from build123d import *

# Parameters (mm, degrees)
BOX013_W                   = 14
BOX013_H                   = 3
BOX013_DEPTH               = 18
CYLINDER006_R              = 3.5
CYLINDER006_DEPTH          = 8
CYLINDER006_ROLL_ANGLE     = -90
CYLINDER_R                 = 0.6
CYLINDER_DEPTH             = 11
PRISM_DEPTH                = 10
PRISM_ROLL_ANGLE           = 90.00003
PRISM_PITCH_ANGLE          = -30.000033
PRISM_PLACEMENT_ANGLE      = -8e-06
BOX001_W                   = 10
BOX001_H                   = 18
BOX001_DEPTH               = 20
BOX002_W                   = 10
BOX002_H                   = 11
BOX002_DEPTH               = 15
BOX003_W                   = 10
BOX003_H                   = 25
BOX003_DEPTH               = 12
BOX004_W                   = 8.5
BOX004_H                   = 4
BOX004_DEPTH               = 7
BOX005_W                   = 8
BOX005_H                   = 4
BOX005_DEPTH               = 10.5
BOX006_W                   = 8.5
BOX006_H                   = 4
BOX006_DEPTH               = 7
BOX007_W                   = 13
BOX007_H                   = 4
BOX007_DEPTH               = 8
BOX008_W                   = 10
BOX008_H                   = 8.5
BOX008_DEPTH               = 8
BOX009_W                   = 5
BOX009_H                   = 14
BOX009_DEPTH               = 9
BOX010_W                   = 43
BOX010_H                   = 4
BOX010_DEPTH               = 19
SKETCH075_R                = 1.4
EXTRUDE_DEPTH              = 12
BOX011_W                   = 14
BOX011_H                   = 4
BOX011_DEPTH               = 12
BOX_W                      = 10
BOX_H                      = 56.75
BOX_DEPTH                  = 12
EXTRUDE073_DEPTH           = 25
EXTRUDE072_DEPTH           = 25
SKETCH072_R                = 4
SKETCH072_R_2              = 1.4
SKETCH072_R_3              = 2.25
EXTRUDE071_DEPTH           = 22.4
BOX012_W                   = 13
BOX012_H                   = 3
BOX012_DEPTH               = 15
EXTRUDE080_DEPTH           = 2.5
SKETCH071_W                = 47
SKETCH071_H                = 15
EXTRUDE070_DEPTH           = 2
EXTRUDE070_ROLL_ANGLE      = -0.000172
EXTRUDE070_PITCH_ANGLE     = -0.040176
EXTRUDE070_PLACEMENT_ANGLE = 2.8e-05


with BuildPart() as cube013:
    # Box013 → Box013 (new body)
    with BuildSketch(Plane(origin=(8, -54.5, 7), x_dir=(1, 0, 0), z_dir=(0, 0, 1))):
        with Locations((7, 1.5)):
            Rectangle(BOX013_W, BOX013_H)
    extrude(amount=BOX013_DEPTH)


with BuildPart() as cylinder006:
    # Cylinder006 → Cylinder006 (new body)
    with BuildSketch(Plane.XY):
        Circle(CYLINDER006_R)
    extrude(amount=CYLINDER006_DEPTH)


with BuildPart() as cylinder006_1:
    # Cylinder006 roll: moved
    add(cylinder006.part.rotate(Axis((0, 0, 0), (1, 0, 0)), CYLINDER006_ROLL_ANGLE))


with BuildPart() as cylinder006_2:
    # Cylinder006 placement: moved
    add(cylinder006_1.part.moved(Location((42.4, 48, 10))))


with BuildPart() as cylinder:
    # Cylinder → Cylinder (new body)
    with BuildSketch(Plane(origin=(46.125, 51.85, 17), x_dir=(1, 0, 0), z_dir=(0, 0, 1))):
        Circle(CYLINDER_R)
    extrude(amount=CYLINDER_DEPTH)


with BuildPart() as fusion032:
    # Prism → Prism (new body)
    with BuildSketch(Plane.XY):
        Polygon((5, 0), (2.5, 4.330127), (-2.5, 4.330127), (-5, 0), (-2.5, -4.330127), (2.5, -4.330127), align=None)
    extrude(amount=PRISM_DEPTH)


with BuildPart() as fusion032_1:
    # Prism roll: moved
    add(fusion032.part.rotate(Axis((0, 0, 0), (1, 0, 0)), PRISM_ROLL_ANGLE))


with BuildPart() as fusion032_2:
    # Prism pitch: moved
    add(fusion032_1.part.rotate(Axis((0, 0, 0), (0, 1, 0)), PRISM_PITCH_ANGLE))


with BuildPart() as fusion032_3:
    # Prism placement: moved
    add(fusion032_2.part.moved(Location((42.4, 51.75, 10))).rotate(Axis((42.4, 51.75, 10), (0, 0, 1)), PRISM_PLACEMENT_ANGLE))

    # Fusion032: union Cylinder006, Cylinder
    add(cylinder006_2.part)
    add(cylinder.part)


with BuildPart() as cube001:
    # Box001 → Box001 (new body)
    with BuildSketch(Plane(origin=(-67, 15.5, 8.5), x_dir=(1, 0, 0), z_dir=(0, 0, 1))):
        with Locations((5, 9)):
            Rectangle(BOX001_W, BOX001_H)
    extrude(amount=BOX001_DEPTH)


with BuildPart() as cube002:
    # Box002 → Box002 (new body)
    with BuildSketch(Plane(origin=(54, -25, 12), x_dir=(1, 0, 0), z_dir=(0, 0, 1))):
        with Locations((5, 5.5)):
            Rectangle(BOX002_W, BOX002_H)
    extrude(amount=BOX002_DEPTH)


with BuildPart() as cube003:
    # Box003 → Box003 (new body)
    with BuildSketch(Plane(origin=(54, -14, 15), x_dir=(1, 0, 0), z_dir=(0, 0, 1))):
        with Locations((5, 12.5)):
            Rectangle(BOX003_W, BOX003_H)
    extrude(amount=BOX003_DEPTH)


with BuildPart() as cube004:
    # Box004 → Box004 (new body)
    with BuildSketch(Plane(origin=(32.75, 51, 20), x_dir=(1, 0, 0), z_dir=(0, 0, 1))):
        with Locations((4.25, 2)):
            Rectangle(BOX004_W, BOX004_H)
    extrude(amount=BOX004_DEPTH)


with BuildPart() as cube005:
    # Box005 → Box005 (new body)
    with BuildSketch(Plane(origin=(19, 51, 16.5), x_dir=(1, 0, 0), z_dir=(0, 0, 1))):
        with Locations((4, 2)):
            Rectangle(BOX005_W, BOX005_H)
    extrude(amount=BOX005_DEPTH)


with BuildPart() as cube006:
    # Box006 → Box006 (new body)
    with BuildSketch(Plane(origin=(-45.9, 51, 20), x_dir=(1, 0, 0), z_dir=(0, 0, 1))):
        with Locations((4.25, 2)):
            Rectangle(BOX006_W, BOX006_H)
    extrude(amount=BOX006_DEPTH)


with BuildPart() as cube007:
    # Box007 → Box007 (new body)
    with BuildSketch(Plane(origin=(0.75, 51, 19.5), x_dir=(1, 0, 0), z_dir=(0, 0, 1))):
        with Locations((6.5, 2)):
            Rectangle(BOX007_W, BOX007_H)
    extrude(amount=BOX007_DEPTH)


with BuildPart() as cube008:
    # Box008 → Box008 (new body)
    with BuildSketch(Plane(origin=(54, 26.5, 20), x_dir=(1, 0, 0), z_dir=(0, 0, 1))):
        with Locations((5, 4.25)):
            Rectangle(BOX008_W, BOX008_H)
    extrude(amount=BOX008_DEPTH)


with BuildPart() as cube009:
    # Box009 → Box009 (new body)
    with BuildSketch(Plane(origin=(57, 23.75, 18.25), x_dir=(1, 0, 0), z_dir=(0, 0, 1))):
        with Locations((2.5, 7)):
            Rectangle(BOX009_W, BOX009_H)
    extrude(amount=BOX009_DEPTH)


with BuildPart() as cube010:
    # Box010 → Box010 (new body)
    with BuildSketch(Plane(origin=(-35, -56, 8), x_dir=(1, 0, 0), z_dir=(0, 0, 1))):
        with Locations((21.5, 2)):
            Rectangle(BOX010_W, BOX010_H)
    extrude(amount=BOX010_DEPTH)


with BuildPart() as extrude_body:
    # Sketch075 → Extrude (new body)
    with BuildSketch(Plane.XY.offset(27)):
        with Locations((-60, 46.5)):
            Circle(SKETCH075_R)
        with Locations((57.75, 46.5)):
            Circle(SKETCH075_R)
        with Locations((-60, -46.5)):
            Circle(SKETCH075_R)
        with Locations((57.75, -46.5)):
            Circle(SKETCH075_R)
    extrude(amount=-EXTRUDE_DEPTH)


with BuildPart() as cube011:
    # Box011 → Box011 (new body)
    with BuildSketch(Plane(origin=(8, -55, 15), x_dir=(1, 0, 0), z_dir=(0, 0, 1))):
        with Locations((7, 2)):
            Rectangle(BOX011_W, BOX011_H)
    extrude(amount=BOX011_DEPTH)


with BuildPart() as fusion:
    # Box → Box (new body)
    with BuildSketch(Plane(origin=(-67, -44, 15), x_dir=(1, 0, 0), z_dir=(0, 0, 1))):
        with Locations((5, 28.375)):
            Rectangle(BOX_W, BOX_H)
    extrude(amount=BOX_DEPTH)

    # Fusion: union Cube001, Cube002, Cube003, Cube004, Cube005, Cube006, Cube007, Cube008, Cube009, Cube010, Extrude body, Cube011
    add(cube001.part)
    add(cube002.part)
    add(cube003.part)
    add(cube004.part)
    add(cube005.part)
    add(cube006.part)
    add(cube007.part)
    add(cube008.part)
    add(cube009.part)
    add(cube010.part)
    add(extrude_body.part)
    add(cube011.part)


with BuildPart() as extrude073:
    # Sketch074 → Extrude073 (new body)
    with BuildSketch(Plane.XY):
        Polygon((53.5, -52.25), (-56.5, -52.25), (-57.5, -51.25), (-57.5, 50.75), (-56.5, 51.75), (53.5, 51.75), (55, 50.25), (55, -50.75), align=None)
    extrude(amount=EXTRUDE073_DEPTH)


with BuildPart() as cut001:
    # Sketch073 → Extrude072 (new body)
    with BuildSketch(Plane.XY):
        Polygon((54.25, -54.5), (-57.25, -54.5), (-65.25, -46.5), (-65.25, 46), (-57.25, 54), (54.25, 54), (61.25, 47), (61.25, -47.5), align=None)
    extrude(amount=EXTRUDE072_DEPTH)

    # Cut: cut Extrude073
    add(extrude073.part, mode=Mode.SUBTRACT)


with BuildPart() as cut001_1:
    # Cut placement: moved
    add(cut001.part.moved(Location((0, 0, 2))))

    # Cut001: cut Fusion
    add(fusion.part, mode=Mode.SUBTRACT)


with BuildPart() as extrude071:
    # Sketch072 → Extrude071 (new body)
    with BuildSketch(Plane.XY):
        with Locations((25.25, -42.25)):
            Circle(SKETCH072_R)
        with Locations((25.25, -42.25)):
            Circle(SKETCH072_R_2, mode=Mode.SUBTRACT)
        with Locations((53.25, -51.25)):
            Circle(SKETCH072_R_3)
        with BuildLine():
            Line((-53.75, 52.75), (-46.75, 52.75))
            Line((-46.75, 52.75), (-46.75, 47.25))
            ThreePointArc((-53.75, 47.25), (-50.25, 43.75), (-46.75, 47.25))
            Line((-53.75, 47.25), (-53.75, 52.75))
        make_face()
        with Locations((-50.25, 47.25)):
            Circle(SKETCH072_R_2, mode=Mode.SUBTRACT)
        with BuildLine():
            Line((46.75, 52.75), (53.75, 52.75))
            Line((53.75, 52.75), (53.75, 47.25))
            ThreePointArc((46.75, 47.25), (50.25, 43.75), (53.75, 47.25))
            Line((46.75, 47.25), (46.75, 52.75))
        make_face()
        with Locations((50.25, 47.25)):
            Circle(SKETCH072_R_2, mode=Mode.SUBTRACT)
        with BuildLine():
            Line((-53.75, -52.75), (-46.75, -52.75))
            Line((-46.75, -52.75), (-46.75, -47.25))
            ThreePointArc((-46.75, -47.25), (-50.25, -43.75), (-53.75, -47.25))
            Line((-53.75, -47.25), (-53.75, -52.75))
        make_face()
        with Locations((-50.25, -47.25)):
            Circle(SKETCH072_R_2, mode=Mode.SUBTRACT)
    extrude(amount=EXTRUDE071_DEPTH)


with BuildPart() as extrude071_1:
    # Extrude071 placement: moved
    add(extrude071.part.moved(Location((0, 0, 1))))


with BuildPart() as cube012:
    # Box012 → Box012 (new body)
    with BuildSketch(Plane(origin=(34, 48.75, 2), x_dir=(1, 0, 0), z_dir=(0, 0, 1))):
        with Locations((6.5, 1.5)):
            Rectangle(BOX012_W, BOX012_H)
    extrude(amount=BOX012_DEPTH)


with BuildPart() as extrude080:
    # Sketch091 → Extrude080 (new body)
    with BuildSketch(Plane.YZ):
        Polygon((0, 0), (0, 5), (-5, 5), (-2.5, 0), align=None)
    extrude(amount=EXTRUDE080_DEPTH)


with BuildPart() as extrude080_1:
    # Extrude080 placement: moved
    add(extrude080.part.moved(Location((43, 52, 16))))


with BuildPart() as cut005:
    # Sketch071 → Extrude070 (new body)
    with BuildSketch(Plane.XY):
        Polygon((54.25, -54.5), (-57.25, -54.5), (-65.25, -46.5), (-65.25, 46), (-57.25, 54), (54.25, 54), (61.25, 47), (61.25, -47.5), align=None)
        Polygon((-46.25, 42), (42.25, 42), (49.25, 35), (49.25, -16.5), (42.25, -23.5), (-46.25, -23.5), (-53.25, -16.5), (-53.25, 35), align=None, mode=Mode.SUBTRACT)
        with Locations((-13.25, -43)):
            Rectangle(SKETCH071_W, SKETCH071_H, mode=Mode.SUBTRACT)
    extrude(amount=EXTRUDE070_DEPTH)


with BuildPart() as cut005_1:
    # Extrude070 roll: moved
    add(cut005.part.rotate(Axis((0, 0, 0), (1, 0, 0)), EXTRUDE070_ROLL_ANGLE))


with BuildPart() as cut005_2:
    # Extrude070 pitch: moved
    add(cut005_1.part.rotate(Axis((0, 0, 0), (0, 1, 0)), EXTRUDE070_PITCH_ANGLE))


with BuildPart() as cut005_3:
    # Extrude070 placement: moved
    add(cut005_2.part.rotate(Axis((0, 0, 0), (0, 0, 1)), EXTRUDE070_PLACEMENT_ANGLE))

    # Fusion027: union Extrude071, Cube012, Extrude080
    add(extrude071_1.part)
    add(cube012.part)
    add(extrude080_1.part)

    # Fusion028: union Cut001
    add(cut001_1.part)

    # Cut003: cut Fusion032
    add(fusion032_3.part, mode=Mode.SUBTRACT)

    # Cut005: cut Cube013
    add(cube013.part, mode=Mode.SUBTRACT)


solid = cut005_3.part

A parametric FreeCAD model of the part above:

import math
import FreeCAD as App
import Part
import Sketcher
from FreeCAD import Vector
Q = App.Units.Quantity

doc = App.newDocument("Part")
body = doc.addObject("PartDesign::Body", "Body")

sketch1 = body.newObject("Sketcher::SketchObject", "Sketch")
sketch1.AttachmentSupport = (doc.getObject("XY_Plane"), [""])
sketch1.MapMode = "FlatFace"
sketch1.AttachmentOffset = App.Placement(Vector(0, 0, 7), App.Rotation())
sketch1.addGeometry([
    Part.LineSegment(Vector(8, -51.5, 0), Vector(8, -54.5, 0)),
    Part.LineSegment(Vector(8, -54.5, 0), Vector(22, -54.5, 0)),
    Part.LineSegment(Vector(22, -54.5, 0), Vector(22, -51.5, 0)),
    Part.LineSegment(Vector(22, -51.5, 0), Vector(8, -51.5, 0)),
], False)
sketch1.addConstraint([
    Sketcher.Constraint("Coincident", 0, 2, 1, 1),
    Sketcher.Constraint("Coincident", 1, 2, 2, 1),
    Sketcher.Constraint("Coincident", 2, 2, 3, 1),
    Sketcher.Constraint("Coincident", 3, 2, 0, 1),
    Sketcher.Constraint("Vertical", 0),
    Sketcher.Constraint("Horizontal", 1),
    Sketcher.Constraint("Vertical", 2),
    Sketcher.Constraint("Horizontal", 3),
    Sketcher.Constraint("DistanceX", 1, 1, 1, 2, 14.0),
    Sketcher.Constraint("DistanceY", 0, 2, 0, 1, 3.0),
    Sketcher.Constraint("DistanceX", -1, 1, 0, 2, 8.0),
    Sketcher.Constraint("DistanceY", 0, 2, -1, 1, 54.5),
])
pad1 = body.newObject("PartDesign::Pad", "Pad")
pad1.Profile = sketch1
pad1.Length = 18
body2 = doc.addObject("PartDesign::Body", "Body001")

sketch2 = body2.newObject("Sketcher::SketchObject", "Sketch001")
sketch2.AttachmentSupport = (doc.getObject("XY_Plane001"), [""])
sketch2.MapMode = "FlatFace"
sketch2.addGeometry(Part.Circle(Vector(0, 0, 0), Vector(0, 0, 1), 3.5), False)
sketch2.addConstraint([
    Sketcher.Constraint("Coincident", 0, 3, -1, 1),
    Sketcher.Constraint("Diameter", 0, 7.0),
])
pad2 = body2.newObject("PartDesign::Pad", "Pad001")
pad2.Profile = sketch2
pad2.Length = 8
body3 = doc.addObject("PartDesign::Body", "Body002")
doc.recompute()

body2.Placement = App.Placement(Vector(0, 0, 0), App.Rotation(Vector(1, 0, 0), 270))
boolean = body3.newObject("PartDesign::Boolean", "Boolean")
boolean.Type = "Fuse"
boolean.addObjects([body2])
body4 = doc.addObject("PartDesign::Body", "Body003")
doc.recompute()

body3.Placement = App.Placement(Vector(42.4, 48, 10), App.Rotation(Vector(0, 0, 1), 0))
boolean2 = body4.newObject("PartDesign::Boolean", "Boolean001")
boolean2.Type = "Fuse"
boolean2.addObjects([body3])
body5 = doc.addObject("PartDesign::Body", "Body004")

sketch3 = body5.newObject("Sketcher::SketchObject", "Sketch002")
sketch3.AttachmentSupport = (doc.getObject("XY_Plane004"), [""])
sketch3.MapMode = "FlatFace"
sketch3.AttachmentOffset = App.Placement(Vector(0, 0, 17), App.Rotation())
sketch3.addGeometry(Part.Circle(Vector(46.125, 51.85, 0), Vector(0, 0, 1), 0.6), False)
sketch3.addConstraint([
    Sketcher.Constraint("Diameter", 0, 1.2),
    Sketcher.Constraint("DistanceY", -1, 1, 0, 3, 51.85),
    Sketcher.Constraint("DistanceX", -1, 1, 0, 3, 46.125),
])
pad3 = body5.newObject("PartDesign::Pad", "Pad002")
pad3.Profile = sketch3
pad3.Length = 11
body6 = doc.addObject("PartDesign::Body", "Body005")

sketch4 = body6.newObject("Sketcher::SketchObject", "Sketch003")
sketch4.AttachmentSupport = (doc.getObject("XY_Plane005"), [""])
sketch4.MapMode = "FlatFace"
sketch4.addGeometry([
    Part.LineSegment(Vector(5, 0, 0), Vector(2.5, 4.330127, 0)),
    Part.LineSegment(Vector(2.5, 4.330127, 0), Vector(-2.5, 4.330127, 0)),
    Part.LineSegment(Vector(-2.5, 4.330127, 0), Vector(-5, 0, 0)),
    Part.LineSegment(Vector(-5, 0, 0), Vector(-2.5, -4.330127, 0)),
    Part.LineSegment(Vector(-2.5, -4.330127, 0), Vector(2.5, -4.330127, 0)),
    Part.LineSegment(Vector(2.5, -4.330127, 0), Vector(5, 0, 0)),
], False)
sketch4.addConstraint([
    Sketcher.Constraint("Coincident", 0, 2, 1, 1),
    Sketcher.Constraint("Coincident", 1, 2, 2, 1),
    Sketcher.Constraint("Coincident", 2, 2, 3, 1),
    Sketcher.Constraint("Coincident", 3, 2, 4, 1),
    Sketcher.Constraint("Coincident", 4, 2, 5, 1),
    Sketcher.Constraint("Coincident", 5, 2, 0, 1),
    Sketcher.Constraint("Horizontal", 1),
    Sketcher.Constraint("Horizontal", 4),
    Sketcher.Constraint("Symmetric", 0, 2, 3, 2, -1, 1),
    Sketcher.Constraint("Symmetric", 2, 2, 5, 2, -1, 1),
    Sketcher.Constraint("PointOnObject", 2, 2, -1),
    Sketcher.Constraint("Parallel", 2, 5),
    Sketcher.Constraint("Vertical", 1, 2, 3, 2),
    Sketcher.Constraint("DistanceX", 1, 2, 1, 1, 5.0),
    Sketcher.Constraint("Angle", 0, Q("120 deg")),
    Sketcher.Constraint("Distance", 0, 5.0),
])
pad4 = body6.newObject("PartDesign::Pad", "Pad003")
pad4.Profile = sketch4
pad4.Length = 10
body7 = doc.addObject("PartDesign::Body", "Body006")
doc.recompute()

body6.Placement = App.Placement(Vector(0, 0, 0), App.Rotation(Vector(1, 0, 0), 90.00003))
boolean3 = body7.newObject("PartDesign::Boolean", "Boolean002")
boolean3.Type = "Fuse"
boolean3.addObjects([body6])
body8 = doc.addObject("PartDesign::Body", "Body007")
doc.recompute()

body7.Placement = App.Placement(Vector(0, 0, 0), App.Rotation(Vector(0, 1, 0), 329.999967))
boolean4 = body8.newObject("PartDesign::Boolean", "Boolean003")
boolean4.Type = "Fuse"
boolean4.addObjects([body7])
body9 = doc.addObject("PartDesign::Body", "Body008")
body9.AllowCompound = True
doc.recompute()

body8.Placement = App.Placement(Vector(42.4, 51.75, 10), App.Rotation(Vector(0, 0, 1), 359.999992))
boolean5 = body9.newObject("PartDesign::Boolean", "Boolean004")
boolean5.Type = "Fuse"
boolean5.addObjects([body8])
doc.recompute()

boolean6 = body9.newObject("PartDesign::Boolean", "Boolean005")
boolean6.Type = "Fuse"
boolean6.addObjects([body4])
doc.recompute()

boolean7 = body9.newObject("PartDesign::Boolean", "Boolean006")
boolean7.Type = "Fuse"
boolean7.addObjects([body5])
body10 = doc.addObject("PartDesign::Body", "Body009")

sketch5 = body10.newObject("Sketcher::SketchObject", "Sketch004")
sketch5.AttachmentSupport = (doc.getObject("XY_Plane009"), [""])
sketch5.MapMode = "FlatFace"
sketch5.AttachmentOffset = App.Placement(Vector(0, 0, 8.5), App.Rotation())
sketch5.addGeometry([
    Part.LineSegment(Vector(-67, 33.5, 0), Vector(-67, 15.5, 0)),
    Part.LineSegment(Vector(-67, 15.5, 0), Vector(-57, 15.5, 0)),
    Part.LineSegment(Vector(-57, 15.5, 0), Vector(-57, 33.5, 0)),
    Part.LineSegment(Vector(-57, 33.5, 0), Vector(-67, 33.5, 0)),
], False)
sketch5.addConstraint([
    Sketcher.Constraint("Coincident", 0, 2, 1, 1),
    Sketcher.Constraint("Coincident", 1, 2, 2, 1),
    Sketcher.Constraint("Coincident", 2, 2, 3, 1),
    Sketcher.Constraint("Coincident", 3, 2, 0, 1),
    Sketcher.Constraint("Vertical", 0),
    Sketcher.Constraint("Horizontal", 1),
    Sketcher.Constraint("Vertical", 2),
    Sketcher.Constraint("Horizontal", 3),
    Sketcher.Constraint("DistanceX", 1, 1, 1, 2, 10.0),
    Sketcher.Constraint("DistanceY", 0, 2, 0, 1, 18.0),
    Sketcher.Constraint("DistanceX", 0, 2, -1, 1, 67.0),
    Sketcher.Constraint("DistanceY", -1, 1, 0, 2, 15.5),
])
pad5 = body10.newObject("PartDesign::Pad", "Pad004")
pad5.Profile = sketch5
pad5.Length = 20
body11 = doc.addObject("PartDesign::Body", "Body010")

sketch6 = body11.newObject("Sketcher::SketchObject", "Sketch005")
sketch6.AttachmentSupport = (doc.getObject("XY_Plane010"), [""])
sketch6.MapMode = "FlatFace"
sketch6.AttachmentOffset = App.Placement(Vector(0, 0, 12), App.Rotation())
sketch6.addGeometry([
    Part.LineSegment(Vector(54, -14, 0), Vector(54, -25, 0)),
    Part.LineSegment(Vector(54, -25, 0), Vector(64, -25, 0)),
    Part.LineSegment(Vector(64, -25, 0), Vector(64, -14, 0)),
    Part.LineSegment(Vector(64, -14, 0), Vector(54, -14, 0)),
], False)
sketch6.addConstraint([
    Sketcher.Constraint("Coincident", 0, 2, 1, 1),
    Sketcher.Constraint("Coincident", 1, 2, 2, 1),
    Sketcher.Constraint("Coincident", 2, 2, 3, 1),
    Sketcher.Constraint("Coincident", 3, 2, 0, 1),
    Sketcher.Constraint("Vertical", 0),
    Sketcher.Constraint("Horizontal", 1),
    Sketcher.Constraint("Vertical", 2),
    Sketcher.Constraint("Horizontal", 3),
    Sketcher.Constraint("DistanceX", 1, 1, 1, 2, 10.0),
    Sketcher.Constraint("DistanceY", 0, 2, 0, 1, 11.0),
    Sketcher.Constraint("DistanceX", -1, 1, 0, 2, 54.0),
    Sketcher.Constraint("DistanceY", 0, 2, -1, 1, 25.0),
])
pad6 = body11.newObject("PartDesign::Pad", "Pad005")
pad6.Profile = sketch6
pad6.Length = 15
body12 = doc.addObject("PartDesign::Body", "Body011")

sketch7 = body12.newObject("Sketcher::SketchObject", "Sketch006")
sketch7.AttachmentSupport = (doc.getObject("XY_Plane011"), [""])
sketch7.MapMode = "FlatFace"
sketch7.AttachmentOffset = App.Placement(Vector(0, 0, 15), App.Rotation())
sketch7.addGeometry([
    Part.LineSegment(Vector(54, 11, 0), Vector(54, -14, 0)),
    Part.LineSegment(Vector(54, -14, 0), Vector(64, -14, 0)),
    Part.LineSegment(Vector(64, -14, 0), Vector(64, 11, 0)),
    Part.LineSegment(Vector(64, 11, 0), Vector(54, 11, 0)),
], False)
sketch7.addConstraint([
    Sketcher.Constraint("Coincident", 0, 2, 1, 1),
    Sketcher.Constraint("Coincident", 1, 2, 2, 1),
    Sketcher.Constraint("Coincident", 2, 2, 3, 1),
    Sketcher.Constraint("Coincident", 3, 2, 0, 1),
    Sketcher.Constraint("Vertical", 0),
    Sketcher.Constraint("Horizontal", 1),
    Sketcher.Constraint("Vertical", 2),
    Sketcher.Constraint("Horizontal", 3),
    Sketcher.Constraint("DistanceX", 1, 1, 1, 2, 10.0),
    Sketcher.Constraint("DistanceY", 0, 2, 0, 1, 25.0),
    Sketcher.Constraint("DistanceX", -1, 1, 0, 2, 54.0),
    Sketcher.Constraint("DistanceY", 0, 2, -1, 1, 14.0),
])
pad7 = body12.newObject("PartDesign::Pad", "Pad006")
pad7.Profile = sketch7
pad7.Length = 12
body13 = doc.addObject("PartDesign::Body", "Body012")

sketch8 = body13.newObject("Sketcher::SketchObject", "Sketch007")
sketch8.AttachmentSupport = (doc.getObject("XY_Plane012"), [""])
sketch8.MapMode = "FlatFace"
sketch8.AttachmentOffset = App.Placement(Vector(0, 0, 20), App.Rotation())
sketch8.addGeometry([
    Part.LineSegment(Vector(32.75, 55, 0), Vector(32.75, 51, 0)),
    Part.LineSegment(Vector(32.75, 51, 0), Vector(41.25, 51, 0)),
    Part.LineSegment(Vector(41.25, 51, 0), Vector(41.25, 55, 0)),
    Part.LineSegment(Vector(41.25, 55, 0), Vector(32.75, 55, 0)),
], False)
sketch8.addConstraint([
    Sketcher.Constraint("Coincident", 0, 2, 1, 1),
    Sketcher.Constraint("Coincident", 1, 2, 2, 1),
    Sketcher.Constraint("Coincident", 2, 2, 3, 1),
    Sketcher.Constraint("Coincident", 3, 2, 0, 1),
    Sketcher.Constraint("Vertical", 0),
    Sketcher.Constraint("Horizontal", 1),
    Sketcher.Constraint("Vertical", 2),
    Sketcher.Constraint("Horizontal", 3),
    Sketcher.Constraint("DistanceY", 0, 2, 0, 1, 4.0),
    Sketcher.Constraint("DistanceX", 1, 1, 1, 2, 8.5),
    Sketcher.Constraint("DistanceY", -1, 1, 0, 2, 51.0),
    Sketcher.Constraint("DistanceX", -1, 1, 0, 2, 32.75),
])
pad8 = body13.newObject("PartDesign::Pad", "Pad007")
pad8.Profile = sketch8
pad8.Length = 7
body14 = doc.addObject("PartDesign::Body", "Body013")

sketch9 = body14.newObject("Sketcher::SketchObject", "Sketch008")
sketch9.AttachmentSupport = (doc.getObject("XY_Plane013"), [""])
sketch9.MapMode = "FlatFace"
sketch9.AttachmentOffset = App.Placement(Vector(0, 0, 16.5), App.Rotation())
sketch9.addGeometry([
    Part.LineSegment(Vector(19, 55, 0), Vector(19, 51, 0)),
    Part.LineSegment(Vector(19, 51, 0), Vector(27, 51, 0)),
    Part.LineSegment(Vector(27, 51, 0), Vector(27, 55, 0)),
    Part.LineSegment(Vector(27, 55, 0), Vector(19, 55, 0)),
], False)
sketch9.addConstraint([
    Sketcher.Constraint("Coincident", 0, 2, 1, 1),
    Sketcher.Constraint("Coincident", 1, 2, 2, 1),
    Sketcher.Constraint("Coincident", 2, 2, 3, 1),
    Sketcher.Constraint("Coincident", 3, 2, 0, 1),
    Sketcher.Constraint("Vertical", 0),
    Sketcher.Constraint("Horizontal", 1),
    Sketcher.Constraint("Vertical", 2),
    Sketcher.Constraint("Horizontal", 3),
    Sketcher.Constraint("DistanceX", 1, 1, 1, 2, 8.0),
    Sketcher.Constraint("DistanceY", 0, 2, 0, 1, 4.0),
    Sketcher.Constraint("DistanceX", -1, 1, 0, 2, 19.0),
    Sketcher.Constraint("DistanceY", -1, 1, 0, 2, 51.0),
])
pad9 = body14.newObject("PartDesign::Pad", "Pad008")
pad9.Profile = sketch9
pad9.Length = 10.5
body15 = doc.addObject("PartDesign::Body", "Body014")

sketch10 = body15.newObject("Sketcher::SketchObject", "Sketch009")
sketch10.AttachmentSupport = (doc.getObject("XY_Plane014"), [""])
sketch10.MapMode = "FlatFace"
sketch10.AttachmentOffset = App.Placement(Vector(0, 0, 20), App.Rotation())
sketch10.addGeometry([
    Part.LineSegment(Vector(-45.9, 55, 0), Vector(-45.9, 51, 0)),
    Part.LineSegment(Vector(-45.9, 51, 0), Vector(-37.4, 51, 0)),
    Part.LineSegment(Vector(-37.4, 51, 0), Vector(-37.4, 55, 0)),
    Part.LineSegment(Vector(-37.4, 55, 0), Vector(-45.9, 55, 0)),
], False)
sketch10.addConstraint([
    Sketcher.Constraint("Coincident", 0, 2, 1, 1),
    Sketcher.Constraint("Coincident", 1, 2, 2, 1),
    Sketcher.Constraint("Coincident", 2, 2, 3, 1),
    Sketcher.Constraint("Coincident", 3, 2, 0, 1),
    Sketcher.Constraint("Vertical", 0),
    Sketcher.Constraint("Horizontal", 1),
    Sketcher.Constraint("Vertical", 2),
    Sketcher.Constraint("Horizontal", 3),
    Sketcher.Constraint("DistanceY", 0, 2, 0, 1, 4.0),
    Sketcher.Constraint("DistanceX", 1, 1, 1, 2, 8.5),
    Sketcher.Constraint("DistanceY", -1, 1, 0, 2, 51.0),
    Sketcher.Constraint("DistanceX", 0, 2, -1, 1, 45.9),
])
pad10 = body15.newObject("PartDesign::Pad", "Pad009")
pad10.Profile = sketch10
pad10.Length = 7
body16 = doc.addObject("PartDesign::Body", "Body015")

sketch11 = body16.newObject("Sketcher::SketchObject", "Sketch010")
sketch11.AttachmentSupport = (doc.getObject("XY_Plane015"), [""])
sketch11.MapMode = "FlatFace"
sketch11.AttachmentOffset = App.Placement(Vector(0, 0, 19.5), App.Rotation())
sketch11.addGeometry([
    Part.LineSegment(Vector(0.75, 55, 0), Vector(0.75, 51, 0)),
    Part.LineSegment(Vector(0.75, 51, 0), Vector(13.75, 51, 0)),
    Part.LineSegment(Vector(13.75, 51, 0), Vector(13.75, 55, 0)),
    Part.LineSegment(Vector(13.75, 55, 0), Vector(0.75, 55, 0)),
], False)
sketch11.addConstraint([
    Sketcher.Constraint("Coincident", 0, 2, 1, 1),
    Sketcher.Constraint("Coincident", 1, 2, 2, 1),
    Sketcher.Constraint("Coincident", 2, 2, 3, 1),
    Sketcher.Constraint("Coincident", 3, 2, 0, 1),
    Sketcher.Constraint("Vertical", 0),
    Sketcher.Constraint("Horizontal", 1),
    Sketcher.Constraint("Vertical", 2),
    Sketcher.Constraint("Horizontal", 3),
    Sketcher.Constraint("DistanceX", 1, 1, 1, 2, 13.0),
    Sketcher.Constraint("DistanceY", 0, 2, 0, 1, 4.0),
    Sketcher.Constraint("DistanceY", -1, 1, 0, 2, 51.0),
    Sketcher.Constraint("DistanceX", -1, 1, 0, 2, 0.75),
])
pad11 = body16.newObject("PartDesign::Pad", "Pad010")
pad11.Profile = sketch11
pad11.Length = 8
body17 = doc.addObject("PartDesign::Body", "Body016")

sketch12 = body17.newObject("Sketcher::SketchObject", "Sketch011")
sketch12.AttachmentSupport = (doc.getObject("XY_Plane016"), [""])
sketch12.MapMode = "FlatFace"
sketch12.AttachmentOffset = App.Placement(Vector(0, 0, 20), App.Rotation())
sketch12.addGeometry([
    Part.LineSegment(Vector(54, 35, 0), Vector(54, 26.5, 0)),
    Part.LineSegment(Vector(54, 26.5, 0), Vector(64, 26.5, 0)),
    Part.LineSegment(Vector(64, 26.5, 0), Vector(64, 35, 0)),
    Part.LineSegment(Vector(64, 35, 0), Vector(54, 35, 0)),
], False)
sketch12.addConstraint([
    Sketcher.Constraint("Coincident", 0, 2, 1, 1),
    Sketcher.Constraint("Coincident", 1, 2, 2, 1),
    Sketcher.Constraint("Coincident", 2, 2, 3, 1),
    Sketcher.Constraint("Coincident", 3, 2, 0, 1),
    Sketcher.Constraint("Vertical", 0),
    Sketcher.Constraint("Horizontal", 1),
    Sketcher.Constraint("Vertical", 2),
    Sketcher.Constraint("Horizontal", 3),
    Sketcher.Constraint("DistanceX", 1, 1, 1, 2, 10.0),
    Sketcher.Constraint("DistanceY", 0, 2, 0, 1, 8.5),
    Sketcher.Constraint("DistanceX", -1, 1, 0, 2, 54.0),
    Sketcher.Constraint("DistanceY", -1, 1, 2, 2, 35.0),
])
pad12 = body17.newObject("PartDesign::Pad", "Pad011")
pad12.Profile = sketch12
pad12.Length = 8
body18 = doc.addObject("PartDesign::Body", "Body017")

sketch13 = body18.newObject("Sketcher::SketchObject", "Sketch012")
sketch13.AttachmentSupport = (doc.getObject("XY_Plane017"), [""])
sketch13.MapMode = "FlatFace"
sketch13.AttachmentOffset = App.Placement(Vector(0, 0, 18.25), App.Rotation())
sketch13.addGeometry([
    Part.LineSegment(Vector(57, 37.75, 0), Vector(57, 23.75, 0)),
    Part.LineSegment(Vector(57, 23.75, 0), Vector(62, 23.75, 0)),
    Part.LineSegment(Vector(62, 23.75, 0), Vector(62, 37.75, 0)),
    Part.LineSegment(Vector(62, 37.75, 0), Vector(57, 37.75, 0)),
], False)
sketch13.addConstraint([
    Sketcher.Constraint("Coincident", 0, 2, 1, 1),
    Sketcher.Constraint("Coincident", 1, 2, 2, 1),
    Sketcher.Constraint("Coincident", 2, 2, 3, 1),
    Sketcher.Constraint("Coincident", 3, 2, 0, 1),
    Sketcher.Constraint("Vertical", 0),
    Sketcher.Constraint("Horizontal", 1),
    Sketcher.Constraint("Vertical", 2),
    Sketcher.Constraint("Horizontal", 3),
    Sketcher.Constraint("DistanceX", 1, 1, 1, 2, 5.0),
    Sketcher.Constraint("DistanceY", 0, 2, 0, 1, 14.0),
    Sketcher.Constraint("DistanceX", -1, 1, 0, 2, 57.0),
    Sketcher.Constraint("DistanceY", -1, 1, 0, 2, 23.75),
])
pad13 = body18.newObject("PartDesign::Pad", "Pad012")
pad13.Profile = sketch13
pad13.Length = 9
body19 = doc.addObject("PartDesign::Body", "Body018")

sketch14 = body19.newObject("Sketcher::SketchObject", "Sketch013")
sketch14.AttachmentSupport = (doc.getObject("XY_Plane018"), [""])
sketch14.MapMode = "FlatFace"
sketch14.AttachmentOffset = App.Placement(Vector(0, 0, 8), App.Rotation())
sketch14.addGeometry([
    Part.LineSegment(Vector(-35, -52, 0), Vector(-35, -56, 0)),
    Part.LineSegment(Vector(-35, -56, 0), Vector(8, -56, 0)),
    Part.LineSegment(Vector(8, -56, 0), Vector(8, -52, 0)),
    Part.LineSegment(Vector(8, -52, 0), Vector(-35, -52, 0)),
], False)
sketch14.addConstraint([
    Sketcher.Constraint("Coincident", 0, 2, 1, 1),
    Sketcher.Constraint("Coincident", 1, 2, 2, 1),
    Sketcher.Constraint("Coincident", 2, 2, 3, 1),
    Sketcher.Constraint("Coincident", 3, 2, 0, 1),
    Sketcher.Constraint("Vertical", 0),
    Sketcher.Constraint("Horizontal", 1),
    Sketcher.Constraint("Vertical", 2),
    Sketcher.Constraint("Horizontal", 3),
    Sketcher.Constraint("DistanceX", 1, 1, 1, 2, 43.0),
    Sketcher.Constraint("DistanceY", 0, 2, 0, 1, 4.0),
    Sketcher.Constraint("DistanceX", 0, 2, -1, 1, 35.0),
    Sketcher.Constraint("DistanceY", 0, 2, -1, 1, 56.0),
])
pad14 = body19.newObject("PartDesign::Pad", "Pad013")
pad14.Profile = sketch14
pad14.Length = 19
body20 = doc.addObject("PartDesign::Body", "Body019")
body20.AllowCompound = True

sketch15 = body20.newObject("Sketcher::SketchObject", "Sketch014")
sketch15.AttachmentSupport = (doc.getObject("XY_Plane019"), [""])
sketch15.MapMode = "FlatFace"
sketch15.AttachmentOffset = App.Placement(Vector(0, 0, 27), App.Rotation())
sketch15.addGeometry([
    Part.Circle(Vector(-60, 46.5, 0), Vector(0, 0, 1), 1.4),
    Part.Circle(Vector(57.75, 46.5, 0), Vector(0, 0, 1), 1.4),
    Part.Circle(Vector(-60, -46.5, 0), Vector(0, 0, 1), 1.4),
    Part.Circle(Vector(57.75, -46.5, 0), Vector(0, 0, 1), 1.4),
], False)
sketch15.addConstraint([
    Sketcher.Constraint("Equal", 0, 1),
    Sketcher.Constraint("Equal", 1, 2),
    Sketcher.Constraint("Equal", 2, 3),
    Sketcher.Constraint("Symmetric", 0, 3, 2, 3, -1),
    Sketcher.Constraint("Symmetric", 1, 3, 3, 3, -1),
    Sketcher.Constraint("Horizontal", 0, 3, 1, 3),
    Sketcher.Constraint("Diameter", 0, 2.8),
    Sketcher.Constraint("DistanceX", 0, 3, -1, 1, 60.0),
    Sketcher.Constraint("DistanceY", 2, 3, 0, 3, 93.0),
    Sketcher.Constraint("DistanceX", -1, 1, 1, 3, 57.75),
])
pad15 = body20.newObject("PartDesign::Pad", "Pad014")
pad15.Profile = sketch15
pad15.Length = 12
pad15.Reversed = True
body21 = doc.addObject("PartDesign::Body", "Body020")

sketch16 = body21.newObject("Sketcher::SketchObject", "Sketch015")
sketch16.AttachmentSupport = (doc.getObject("XY_Plane020"), [""])
sketch16.MapMode = "FlatFace"
sketch16.AttachmentOffset = App.Placement(Vector(0, 0, 15), App.Rotation())
sketch16.addGeometry([
    Part.LineSegment(Vector(8, -51, 0), Vector(8, -55, 0)),
    Part.LineSegment(Vector(8, -55, 0), Vector(22, -55, 0)),
    Part.LineSegment(Vector(22, -55, 0), Vector(22, -51, 0)),
    Part.LineSegment(Vector(22, -51, 0), Vector(8, -51, 0)),
], False)
sketch16.addConstraint([
    Sketcher.Constraint("Coincident", 0, 2, 1, 1),
    Sketcher.Constraint("Coincident", 1, 2, 2, 1),
    Sketcher.Constraint("Coincident", 2, 2, 3, 1),
    Sketcher.Constraint("Coincident", 3, 2, 0, 1),
    Sketcher.Constraint("Vertical", 0),
    Sketcher.Constraint("Horizontal", 1),
    Sketcher.Constraint("Vertical", 2),
    Sketcher.Constraint("Horizontal", 3),
    Sketcher.Constraint("DistanceX", 1, 1, 1, 2, 14.0),
    Sketcher.Constraint("DistanceY", 0, 2, 0, 1, 4.0),
    Sketcher.Constraint("DistanceX", -1, 1, 0, 2, 8.0),
    Sketcher.Constraint("DistanceY", 0, 2, -1, 1, 55.0),
])
pad16 = body21.newObject("PartDesign::Pad", "Pad015")
pad16.Profile = sketch16
pad16.Length = 12
body22 = doc.addObject("PartDesign::Body", "Body021")
body22.AllowCompound = True

sketch17 = body22.newObject("Sketcher::SketchObject", "Sketch016")
sketch17.AttachmentSupport = (doc.getObject("XY_Plane021"), [""])
sketch17.MapMode = "FlatFace"
sketch17.AttachmentOffset = App.Placement(Vector(0, 0, 15), App.Rotation())
sketch17.addGeometry([
    Part.LineSegment(Vector(-67, 12.75, 0), Vector(-67, -44, 0)),
    Part.LineSegment(Vector(-67, -44, 0), Vector(-57, -44, 0)),
    Part.LineSegment(Vector(-57, -44, 0), Vector(-57, 12.75, 0)),
    Part.LineSegment(Vector(-57, 12.75, 0), Vector(-67, 12.75, 0)),
], False)
sketch17.addConstraint([
    Sketcher.Constraint("Coincident", 0, 2, 1, 1),
    Sketcher.Constraint("Coincident", 1, 2, 2, 1),
    Sketcher.Constraint("Coincident", 2, 2, 3, 1),
    Sketcher.Constraint("Coincident", 3, 2, 0, 1),
    Sketcher.Constraint("Vertical", 0),
    Sketcher.Constraint("Horizontal", 1),
    Sketcher.Constraint("Vertical", 2),
    Sketcher.Constraint("Horizontal", 3),
    Sketcher.Constraint("DistanceX", 1, 1, 1, 2, 10.0),
    Sketcher.Constraint("DistanceX", 0, 2, -1, 1, 67.0),
    Sketcher.Constraint("DistanceY", 0, 2, -1, 1, 44.0),
    Sketcher.Constraint("DistanceY", 0, 2, 0, 1, 56.75),
])
pad17 = body22.newObject("PartDesign::Pad", "Pad016")
pad17.Profile = sketch17
pad17.Length = 12
doc.recompute()

boolean8 = body22.newObject("PartDesign::Boolean", "Boolean007")
boolean8.Type = "Fuse"
boolean8.addObjects([body10])
doc.recompute()

boolean9 = body22.newObject("PartDesign::Boolean", "Boolean008")
boolean9.Type = "Fuse"
boolean9.addObjects([body11])
doc.recompute()

boolean10 = body22.newObject("PartDesign::Boolean", "Boolean009")
boolean10.Type = "Fuse"
boolean10.addObjects([body12])
doc.recompute()

boolean11 = body22.newObject("PartDesign::Boolean", "Boolean010")
boolean11.Type = "Fuse"
boolean11.addObjects([body13])
doc.recompute()

boolean12 = body22.newObject("PartDesign::Boolean", "Boolean011")
boolean12.Type = "Fuse"
boolean12.addObjects([body14])
doc.recompute()

boolean13 = body22.newObject("PartDesign::Boolean", "Boolean012")
boolean13.Type = "Fuse"
boolean13.addObjects([body15])
doc.recompute()

boolean14 = body22.newObject("PartDesign::Boolean", "Boolean013")
boolean14.Type = "Fuse"
boolean14.addObjects([body16])
doc.recompute()

boolean15 = body22.newObject("PartDesign::Boolean", "Boolean014")
boolean15.Type = "Fuse"
boolean15.addObjects([body17])
doc.recompute()

boolean16 = body22.newObject("PartDesign::Boolean", "Boolean015")
boolean16.Type = "Fuse"
boolean16.addObjects([body18])
doc.recompute()

boolean17 = body22.newObject("PartDesign::Boolean", "Boolean016")
boolean17.Type = "Fuse"
boolean17.addObjects([body19])
doc.recompute()

boolean18 = body22.newObject("PartDesign::Boolean", "Boolean017")
boolean18.Type = "Fuse"
boolean18.addObjects([body20])
doc.recompute()

boolean19 = body22.newObject("PartDesign::Boolean", "Boolean018")
boolean19.Type = "Fuse"
boolean19.addObjects([body21])
body23 = doc.addObject("PartDesign::Body", "Body022")

sketch18 = body23.newObject("Sketcher::SketchObject", "Sketch017")
sketch18.AttachmentSupport = (doc.getObject("XY_Plane022"), [""])
sketch18.MapMode = "FlatFace"
sketch18.addGeometry([
    Part.LineSegment(Vector(-56.5, -52.25, 0), Vector(53.5, -52.25, 0)),
    Part.LineSegment(Vector(53.5, -52.25, 0), Vector(55, -50.75, 0)),
    Part.LineSegment(Vector(55, -50.75, 0), Vector(55, 50.25, 0)),
    Part.LineSegment(Vector(55, 50.25, 0), Vector(53.5, 51.75, 0)),
    Part.LineSegment(Vector(53.5, 51.75, 0), Vector(-56.5, 51.75, 0)),
    Part.LineSegment(Vector(-56.5, 51.75, 0), Vector(-57.5, 50.75, 0)),
    Part.LineSegment(Vector(-57.5, 50.75, 0), Vector(-57.5, -51.25, 0)),
    Part.LineSegment(Vector(-57.5, -51.25, 0), Vector(-56.5, -52.25, 0)),
], False)
sketch18.addConstraint([
    Sketcher.Constraint("Coincident", 0, 2, 1, 1),
    Sketcher.Constraint("Coincident", 1, 2, 2, 1),
    Sketcher.Constraint("Coincident", 2, 2, 3, 1),
    Sketcher.Constraint("Coincident", 3, 2, 4, 1),
    Sketcher.Constraint("Coincident", 4, 2, 5, 1),
    Sketcher.Constraint("Coincident", 5, 2, 6, 1),
    Sketcher.Constraint("Coincident", 6, 2, 7, 1),
    Sketcher.Constraint("Coincident", 7, 2, 0, 1),
    Sketcher.Constraint("Horizontal", 0),
    Sketcher.Constraint("Vertical", 2),
    Sketcher.Constraint("Horizontal", 4),
    Sketcher.Constraint("Vertical", 6),
    Sketcher.Constraint("Perpendicular", 1, 3),
    Sketcher.Constraint("Perpendicular", 3, 5),
    Sketcher.Constraint("Perpendicular", 5, 7),
    Sketcher.Constraint("Vertical", 0, 2, 3, 2),
    Sketcher.Constraint("Vertical", 4, 2, 7, 2),
    Sketcher.Constraint("Equal", 1, 3),
    Sketcher.Constraint("DistanceX", 0, 1, 0, 2, 110.0),
    Sketcher.Constraint("DistanceY", 2, 1, 2, 2, 101.0),
    Sketcher.Constraint("DistanceY", 6, 2, 6, 1, 102.0),
    Sketcher.Constraint("DistanceX", -1, 1, 1, 2, 55.0),
    Sketcher.Constraint("DistanceY", 0, 2, 3, 2, 104.0),
    Sketcher.Constraint("DistanceY", 0, 2, -1, 1, 52.25),
])
pad18 = body23.newObject("PartDesign::Pad", "Pad017")
pad18.Profile = sketch18
pad18.Length = 25
body24 = doc.addObject("PartDesign::Body", "Body023")

sketch19 = body24.newObject("Sketcher::SketchObject", "Sketch018")
sketch19.AttachmentSupport = (doc.getObject("XY_Plane023"), [""])
sketch19.MapMode = "FlatFace"
sketch19.addGeometry([
    Part.LineSegment(Vector(-57.25, -54.5, 0), Vector(54.25, -54.5, 0)),
    Part.LineSegment(Vector(54.25, -54.5, 0), Vector(61.25, -47.5, 0)),
    Part.LineSegment(Vector(61.25, -47.5, 0), Vector(61.25, 47, 0)),
    Part.LineSegment(Vector(61.25, 47, 0), Vector(54.25, 54, 0)),
    Part.LineSegment(Vector(54.25, 54, 0), Vector(-57.25, 54, 0)),
    Part.LineSegment(Vector(-57.25, 54, 0), Vector(-65.25, 46, 0)),
    Part.LineSegment(Vector(-65.25, 46, 0), Vector(-65.25, -46.5, 0)),
    Part.LineSegment(Vector(-65.25, -46.5, 0), Vector(-57.25, -54.5, 0)),
], False)
sketch19.addConstraint([
    Sketcher.Constraint("Coincident", 0, 2, 1, 1),
    Sketcher.Constraint("Coincident", 1, 2, 2, 1),
    Sketcher.Constraint("Coincident", 2, 2, 3, 1),
    Sketcher.Constraint("Coincident", 3, 2, 4, 1),
    Sketcher.Constraint("Coincident", 4, 2, 5, 1),
    Sketcher.Constraint("Coincident", 5, 2, 6, 1),
    Sketcher.Constraint("Coincident", 6, 2, 7, 1),
    Sketcher.Constraint("Coincident", 7, 2, 0, 1),
    Sketcher.Constraint("Horizontal", 0),
    Sketcher.Constraint("Vertical", 2),
    Sketcher.Constraint("Horizontal", 4),
    Sketcher.Constraint("Vertical", 6),
    Sketcher.Constraint("Perpendicular", 1, 3),
    Sketcher.Constraint("Perpendicular", 3, 5),
    Sketcher.Constraint("Perpendicular", 5, 7),
    Sketcher.Constraint("Vertical", 0, 2, 3, 2),
    Sketcher.Constraint("Vertical", 4, 2, 7, 2),
    Sketcher.Constraint("Equal", 1, 3),
    Sketcher.Constraint("DistanceX", 0, 1, 0, 2, 111.5),
    Sketcher.Constraint("DistanceY", 2, 1, 2, 2, 94.5),
    Sketcher.Constraint("DistanceY", 6, 2, 6, 1, 92.5),
    Sketcher.Constraint("DistanceY", -1, 1, 2, 2, 47.0),
    Sketcher.Constraint("DistanceY", -1, 1, 3, 2, 54.0),
    Sketcher.Constraint("DistanceX", -1, 1, 0, 2, 54.25),
])
pad19 = body24.newObject("PartDesign::Pad", "Pad018")
pad19.Profile = sketch19
pad19.Length = 25
doc.recompute()

boolean20 = body24.newObject("PartDesign::Boolean", "Boolean019")
boolean20.Type = "Cut"
boolean20.addObjects([body23])
body25 = doc.addObject("PartDesign::Body", "Body024")
doc.recompute()

body24.Placement = App.Placement(Vector(0, 0, 2), App.Rotation(Vector(0, 0, 1), 0))
boolean21 = body25.newObject("PartDesign::Boolean", "Boolean020")
boolean21.Type = "Fuse"
boolean21.addObjects([body24])
doc.recompute()

boolean22 = body25.newObject("PartDesign::Boolean", "Boolean021")
boolean22.Type = "Cut"
boolean22.addObjects([body22])
body26 = doc.addObject("PartDesign::Body", "Body025")
body26.AllowCompound = True

sketch20 = body26.newObject("Sketcher::SketchObject", "Sketch019")
sketch20.AttachmentSupport = (doc.getObject("XY_Plane025"), [""])
sketch20.MapMode = "FlatFace"
sketch20.addGeometry([
    Part.Circle(Vector(25.25, -42.25, 0), Vector(0, 0, 1), 4),
    Part.Circle(Vector(25.25, -42.25, 0), Vector(0, 0, 1), 1.4),
    Part.Circle(Vector(53.25, -51.25, 0), Vector(0, 0, 1), 2.25),
    Part.LineSegment(Vector(-46.75, 52.75, 0), Vector(-53.75, 52.75, 0)),
    Part.LineSegment(Vector(-53.75, 52.75, 0), Vector(-53.75, 47.25, 0)),
    Part.ArcOfCircle(Part.Circle(Vector(-50.25, 47.25, 0), Vector(0, 0, 1), 3.5), math.radians(180), math.radians(360)),
    Part.LineSegment(Vector(-46.75, 47.25, 0), Vector(-46.75, 52.75, 0)),
    Part.Circle(Vector(-50.25, 47.25, 0), Vector(0, 0, 1), 1.4),
    Part.LineSegment(Vector(53.75, 52.75, 0), Vector(46.75, 52.75, 0)),
    Part.LineSegment(Vector(46.75, 52.75, 0), Vector(46.75, 47.25, 0)),
    Part.ArcOfCircle(Part.Circle(Vector(50.25, 47.25, 0), Vector(0, 0, 1), 3.5), math.radians(180), math.radians(360)),
    Part.LineSegment(Vector(53.75, 47.25, 0), Vector(53.75, 52.75, 0)),
    Part.Circle(Vector(50.25, 47.25, 0), Vector(0, 0, 1), 1.4),
    Part.LineSegment(Vector(-53.75, -52.75, 0), Vector(-46.75, -52.75, 0)),
    Part.LineSegment(Vector(-46.75, -52.75, 0), Vector(-46.75, -47.25, 0)),
    Part.ArcOfCircle(Part.Circle(Vector(-50.25, -47.25, 0), Vector(0, 0, 1), 3.5), math.radians(0), math.radians(180)),
    Part.LineSegment(Vector(-53.75, -47.25, 0), Vector(-53.75, -52.75, 0)),
    Part.Circle(Vector(-50.25, -47.25, 0), Vector(0, 0, 1), 1.4),
], False)
sketch20.addConstraint([
    Sketcher.Constraint("Coincident", 3, 2, 4, 1),
    Sketcher.Constraint("Tangent", 4, 2, 5, 1),
    Sketcher.Constraint("Tangent", 5, 2, 6, 1),
    Sketcher.Constraint("Coincident", 6, 2, 3, 1),
    Sketcher.Constraint("Coincident", 8, 2, 9, 1),
    Sketcher.Constraint("Tangent", 9, 2, 10, 1),
    Sketcher.Constraint("Tangent", 10, 2, 11, 1),
    Sketcher.Constraint("Coincident", 11, 2, 8, 1),
    Sketcher.Constraint("Coincident", 13, 2, 14, 1),
    Sketcher.Constraint("Tangent", 14, 2, 15, 1),
    Sketcher.Constraint("Tangent", 15, 2, 16, 1),
    Sketcher.Constraint("Coincident", 16, 2, 13, 1),
    Sketcher.Constraint("Horizontal", 3),
    Sketcher.Constraint("Vertical", 4),
    Sketcher.Constraint("Vertical", 6),
    Sketcher.Constraint("Horizontal", 8),
    Sketcher.Constraint("Vertical", 9),
    Sketcher.Constraint("Vertical", 11),
    Sketcher.Constraint("Horizontal", 13),
    Sketcher.Constraint("Vertical", 14),
    Sketcher.Constraint("Vertical", 16),
    Sketcher.Constraint("Coincident", 1, 3, 0, 3),
    Sketcher.Constraint("Coincident", 7, 3, 5, 3),
    Sketcher.Constraint("Coincident", 12, 3, 10, 3),
    Sketcher.Constraint("Coincident", 17, 3, 15, 3),
    Sketcher.Constraint("Equal", 1, 7),
    Sketcher.Constraint("Equal", 5, 10),
    Sketcher.Constraint("Equal", 7, 12),
    Sketcher.Constraint("Equal", 10, 15),
    Sketcher.Constraint("Equal", 12, 17),
    Sketcher.Constraint("Symmetric", 10, 3, 15, 3, -1, 1),
    Sketcher.Constraint("Symmetric", 5, 3, 10, 3, -2),
    Sketcher.Constraint("Horizontal", 6, 2, 8, 2),
    Sketcher.Constraint("Equal", 11, 14),
    Sketcher.Constraint("Diameter", 0, 8.0),
    Sketcher.Constraint("Diameter", 1, 2.8),
    Sketcher.Constraint("Diameter", 2, 4.5),
    Sketcher.Constraint("Radius", 5, 3.5),
    Sketcher.Constraint("DistanceY", 4, 2, 4, 1, 5.5),
    Sketcher.Constraint("DistanceX", 0, 3, 2, 3, 28.0),
    Sketcher.Constraint("DistanceY", 2, 3, 0, 3, 9.0),
    Sketcher.Constraint("DistanceX", 0, 3, 10, 3, 25.0),
    Sketcher.Constraint("DistanceY", 15, 3, 0, 3, 5.0),
    Sketcher.Constraint("DistanceY", 15, 3, 3, 2, 100.0),
    Sketcher.Constraint("DistanceX", 3, 2, 10, 3, 104.0),
])
pad20 = body26.newObject("PartDesign::Pad", "Pad019")
pad20.Profile = sketch20
pad20.Length = 22.4
body27 = doc.addObject("PartDesign::Body", "Body026")
body27.AllowCompound = True
doc.recompute()

body26.Placement = App.Placement(Vector(0, 0, 1), App.Rotation(Vector(0, 0, 1), 0))
boolean23 = body27.newObject("PartDesign::Boolean", "Boolean022")
boolean23.Type = "Fuse"
boolean23.addObjects([body26])
body28 = doc.addObject("PartDesign::Body", "Body027")

sketch21 = body28.newObject("Sketcher::SketchObject", "Sketch020")
sketch21.AttachmentSupport = (doc.getObject("XY_Plane027"), [""])
sketch21.MapMode = "FlatFace"
sketch21.AttachmentOffset = App.Placement(Vector(0, 0, 2), App.Rotation())
sketch21.addGeometry([
    Part.LineSegment(Vector(34, 51.75, 0), Vector(34, 48.75, 0)),
    Part.LineSegment(Vector(34, 48.75, 0), Vector(47, 48.75, 0)),
    Part.LineSegment(Vector(47, 48.75, 0), Vector(47, 51.75, 0)),
    Part.LineSegment(Vector(47, 51.75, 0), Vector(34, 51.75, 0)),
], False)
sketch21.addConstraint([
    Sketcher.Constraint("Coincident", 0, 2, 1, 1),
    Sketcher.Constraint("Coincident", 1, 2, 2, 1),
    Sketcher.Constraint("Coincident", 2, 2, 3, 1),
    Sketcher.Constraint("Coincident", 3, 2, 0, 1),
    Sketcher.Constraint("Vertical", 0),
    Sketcher.Constraint("Horizontal", 1),
    Sketcher.Constraint("Vertical", 2),
    Sketcher.Constraint("Horizontal", 3),
    Sketcher.Constraint("DistanceX", 1, 1, 1, 2, 13.0),
    Sketcher.Constraint("DistanceY", 0, 2, 0, 1, 3.0),
    Sketcher.Constraint("DistanceX", -1, 1, 0, 2, 34.0),
    Sketcher.Constraint("DistanceY", -1, 1, 0, 2, 48.75),
])
pad21 = body28.newObject("PartDesign::Pad", "Pad020")
pad21.Profile = sketch21
pad21.Length = 15
body29 = doc.addObject("PartDesign::Body", "Body028")

sketch22 = body29.newObject("Sketcher::SketchObject", "Sketch021")
sketch22.AttachmentSupport = (doc.getObject("YZ_Plane028"), [""])
sketch22.MapMode = "FlatFace"
sketch22.addGeometry([
    Part.LineSegment(Vector(0, 0, 0), Vector(0, 5, 0)),
    Part.LineSegment(Vector(0, 5, 0), Vector(-5, 5, 0)),
    Part.LineSegment(Vector(-5, 5, 0), Vector(-2.5, 0, 0)),
    Part.LineSegment(Vector(-2.5, 0, 0), Vector(0, 0, 0)),
], False)
sketch22.addConstraint([
    Sketcher.Constraint("Coincident", 0, 2, 1, 1),
    Sketcher.Constraint("Coincident", 1, 2, 2, 1),
    Sketcher.Constraint("Coincident", 2, 2, 3, 1),
    Sketcher.Constraint("Coincident", 3, 2, 0, 1),
    Sketcher.Constraint("Vertical", 0),
    Sketcher.Constraint("Horizontal", 1),
    Sketcher.Constraint("Horizontal", 3),
    Sketcher.Constraint("Coincident", 3, 2, -1, 1),
    Sketcher.Constraint("Equal", 1, 0),
    Sketcher.Constraint("DistanceX", 1, 2, 1, 1, 5.0),
    Sketcher.Constraint("DistanceX", 3, 1, 3, 2, 2.5),
])
pad22 = body29.newObject("PartDesign::Pad", "Pad021")
pad22.Profile = sketch22
pad22.Length = 2.5
body30 = doc.addObject("PartDesign::Body", "Body029")
doc.recompute()

body29.Placement = App.Placement(Vector(43, 52, 16), App.Rotation(Vector(0, 0, 1), 0))
boolean24 = body30.newObject("PartDesign::Boolean", "Boolean023")
boolean24.Type = "Fuse"
boolean24.addObjects([body29])
body31 = doc.addObject("PartDesign::Body", "Body030")

sketch23 = body31.newObject("Sketcher::SketchObject", "Sketch022")
sketch23.AttachmentSupport = (doc.getObject("XY_Plane030"), [""])
sketch23.MapMode = "FlatFace"
sketch23.addGeometry([
    Part.LineSegment(Vector(-57.25, -54.5, 0), Vector(54.25, -54.5, 0)),
    Part.LineSegment(Vector(54.25, -54.5, 0), Vector(61.25, -47.5, 0)),
    Part.LineSegment(Vector(61.25, -47.5, 0), Vector(61.25, 47, 0)),
    Part.LineSegment(Vector(61.25, 47, 0), Vector(54.25, 54, 0)),
    Part.LineSegment(Vector(54.25, 54, 0), Vector(-57.25, 54, 0)),
    Part.LineSegment(Vector(-57.25, 54, 0), Vector(-65.25, 46, 0)),
    Part.LineSegment(Vector(-65.25, 46, 0), Vector(-65.25, -46.5, 0)),
    Part.LineSegment(Vector(-65.25, -46.5, 0), Vector(-57.25, -54.5, 0)),
    Part.LineSegment(Vector(-36.75, -50.5, 0), Vector(-36.75, -35.5, 0)),
    Part.LineSegment(Vector(-36.75, -35.5, 0), Vector(10.25, -35.5, 0)),
    Part.LineSegment(Vector(10.25, -35.5, 0), Vector(10.25, -50.5, 0)),
    Part.LineSegment(Vector(10.25, -50.5, 0), Vector(-36.75, -50.5, 0)),
    Part.LineSegment(Vector(-46.25, 42, 0), Vector(42.25, 42, 0)),
    Part.LineSegment(Vector(42.25, 42, 0), Vector(49.25, 35, 0)),
    Part.LineSegment(Vector(49.25, 35, 0), Vector(49.25, -16.5, 0)),
    Part.LineSegment(Vector(49.25, -16.5, 0), Vector(42.25, -23.5, 0)),
    Part.LineSegment(Vector(42.25, -23.5, 0), Vector(-46.25, -23.5, 0)),
    Part.LineSegment(Vector(-46.25, -23.5, 0), Vector(-53.25, -16.5, 0)),
    Part.LineSegment(Vector(-53.25, -16.5, 0), Vector(-53.25, 35, 0)),
    Part.LineSegment(Vector(-53.25, 35, 0), Vector(-46.25, 42, 0)),
], False)
sketch23.addConstraint([
    Sketcher.Constraint("Coincident", 0, 2, 1, 1),
    Sketcher.Constraint("Coincident", 1, 2, 2, 1),
    Sketcher.Constraint("Coincident", 2, 2, 3, 1),
    Sketcher.Constraint("Coincident", 3, 2, 4, 1),
    Sketcher.Constraint("Coincident", 4, 2, 5, 1),
    Sketcher.Constraint("Coincident", 5, 2, 6, 1),
    Sketcher.Constraint("Coincident", 6, 2, 7, 1),
    Sketcher.Constraint("Coincident", 7, 2, 0, 1),
    Sketcher.Constraint("Coincident", 8, 2, 9, 1),
    Sketcher.Constraint("Coincident", 9, 2, 10, 1),
    Sketcher.Constraint("Coincident", 10, 2, 11, 1),
    Sketcher.Constraint("Coincident", 11, 2, 8, 1),
    Sketcher.Constraint("Coincident", 12, 2, 13, 1),
    Sketcher.Constraint("Coincident", 13, 2, 14, 1),
    Sketcher.Constraint("Coincident", 14, 2, 15, 1),
    Sketcher.Constraint("Coincident", 15, 2, 16, 1),
    Sketcher.Constraint("Coincident", 16, 2, 17, 1),
    Sketcher.Constraint("Coincident", 17, 2, 18, 1),
    Sketcher.Constraint("Coincident", 18, 2, 19, 1),
    Sketcher.Constraint("Coincident", 19, 2, 12, 1),
    Sketcher.Constraint("Horizontal", 0),
    Sketcher.Constraint("Vertical", 2),
    Sketcher.Constraint("Horizontal", 4),
    Sketcher.Constraint("Vertical", 6),
    Sketcher.Constraint("Vertical", 8),
    Sketcher.Constraint("Horizontal", 9),
    Sketcher.Constraint("Vertical", 10),
    Sketcher.Constraint("Horizontal", 11),
    Sketcher.Constraint("Horizontal", 12),
    Sketcher.Constraint("Vertical", 14),
    Sketcher.Constraint("Horizontal", 16),
    Sketcher.Constraint("Vertical", 18),
    Sketcher.Constraint("Perpendicular", 1, 3),
    Sketcher.Constraint("Perpendicular", 3, 5),
    Sketcher.Constraint("Perpendicular", 5, 7),
    Sketcher.Constraint("Parallel", 7, 13),
    Sketcher.Constraint("Perpendicular", 13, 15),
    Sketcher.Constraint("Perpendicular", 15, 17),
    Sketcher.Constraint("Perpendicular", 17, 19),
    Sketcher.Constraint("Horizontal", 14, 2, 17, 2),
    Sketcher.Constraint("Horizontal", 13, 2, 18, 2),
    Sketcher.Constraint("Vertical", 0, 2, 3, 2),
    Sketcher.Constraint("Vertical", 4, 2, 7, 2),
    Sketcher.Constraint("Vertical", 12, 2, 15, 2),
    Sketcher.Constraint("Vertical", 16, 2, 19, 2),
    Sketcher.Constraint("Equal", 3, 13),
    Sketcher.Constraint("DistanceX", 9, 1, 9, 2, 47.0),
    Sketcher.Constraint("DistanceY", 8, 1, 8, 2, 15.0),
    Sketcher.Constraint("DistanceX", 0, 1, 0, 2, 111.5),
    Sketcher.Constraint("DistanceX", 12, 1, 12, 2, 88.5),
    Sketcher.Constraint("DistanceY", 2, 1, 2, 2, 94.5),
    Sketcher.Constraint("DistanceY", 6, 2, 6, 1, 92.5),
    Sketcher.Constraint("DistanceY", 14, 2, 14, 1, 51.5),
    Sketcher.Constraint("DistanceY", -1, 1, 2, 2, 47.0),
    Sketcher.Constraint("DistanceY", -1, 1, 3, 2, 54.0),
    Sketcher.Constraint("DistanceY", -1, 1, 12, 2, 42.0),
    Sketcher.Constraint("DistanceY", 7, 2, 8, 2, 19.0),
    Sketcher.Constraint("DistanceX", 8, 2, 0, 2, 91.0),
    Sketcher.Constraint("DistanceX", 12, 2, 3, 2, 12.0),
    Sketcher.Constraint("DistanceX", -1, 1, 0, 2, 54.25),
])
pad23 = body31.newObject("PartDesign::Pad", "Pad022")
pad23.Profile = sketch23
pad23.Length = 2
body32 = doc.addObject("PartDesign::Body", "Body031")
doc.recompute()

body31.Placement = App.Placement(Vector(0, 0, 0), App.Rotation(Vector(1, 0, 0), 359.999828))
boolean25 = body32.newObject("PartDesign::Boolean", "Boolean024")
boolean25.Type = "Fuse"
boolean25.addObjects([body31])
body33 = doc.addObject("PartDesign::Body", "Body032")
doc.recompute()

body32.Placement = App.Placement(Vector(0, 0, 0), App.Rotation(Vector(0, 1, 0), 359.959824))
boolean26 = body33.newObject("PartDesign::Boolean", "Boolean025")
boolean26.Type = "Fuse"
boolean26.addObjects([body32])
body34 = doc.addObject("PartDesign::Body", "Body033")
doc.recompute()

body33.Placement = App.Placement(Vector(0, 0, 0), App.Rotation(Vector(0, 0, 1), 0.000028))
boolean27 = body34.newObject("PartDesign::Boolean", "Boolean026")
boolean27.Type = "Fuse"
boolean27.addObjects([body33])
doc.recompute()

boolean28 = body34.newObject("PartDesign::Boolean", "Boolean027")
boolean28.Type = "Fuse"
boolean28.addObjects([body27])
doc.recompute()

boolean29 = body34.newObject("PartDesign::Boolean", "Boolean028")
boolean29.Type = "Fuse"
boolean29.addObjects([body28])
doc.recompute()

boolean30 = body34.newObject("PartDesign::Boolean", "Boolean029")
boolean30.Type = "Fuse"
boolean30.addObjects([body30])
doc.recompute()

boolean31 = body34.newObject("PartDesign::Boolean", "Boolean030")
boolean31.Type = "Fuse"
boolean31.addObjects([body25])
doc.recompute()

boolean32 = body34.newObject("PartDesign::Boolean", "Boolean031")
boolean32.Type = "Cut"
boolean32.addObjects([body9])
doc.recompute()

boolean33 = body34.newObject("PartDesign::Boolean", "Boolean032")
boolean33.Type = "Cut"
boolean33.addObjects([body])

doc.recompute()
